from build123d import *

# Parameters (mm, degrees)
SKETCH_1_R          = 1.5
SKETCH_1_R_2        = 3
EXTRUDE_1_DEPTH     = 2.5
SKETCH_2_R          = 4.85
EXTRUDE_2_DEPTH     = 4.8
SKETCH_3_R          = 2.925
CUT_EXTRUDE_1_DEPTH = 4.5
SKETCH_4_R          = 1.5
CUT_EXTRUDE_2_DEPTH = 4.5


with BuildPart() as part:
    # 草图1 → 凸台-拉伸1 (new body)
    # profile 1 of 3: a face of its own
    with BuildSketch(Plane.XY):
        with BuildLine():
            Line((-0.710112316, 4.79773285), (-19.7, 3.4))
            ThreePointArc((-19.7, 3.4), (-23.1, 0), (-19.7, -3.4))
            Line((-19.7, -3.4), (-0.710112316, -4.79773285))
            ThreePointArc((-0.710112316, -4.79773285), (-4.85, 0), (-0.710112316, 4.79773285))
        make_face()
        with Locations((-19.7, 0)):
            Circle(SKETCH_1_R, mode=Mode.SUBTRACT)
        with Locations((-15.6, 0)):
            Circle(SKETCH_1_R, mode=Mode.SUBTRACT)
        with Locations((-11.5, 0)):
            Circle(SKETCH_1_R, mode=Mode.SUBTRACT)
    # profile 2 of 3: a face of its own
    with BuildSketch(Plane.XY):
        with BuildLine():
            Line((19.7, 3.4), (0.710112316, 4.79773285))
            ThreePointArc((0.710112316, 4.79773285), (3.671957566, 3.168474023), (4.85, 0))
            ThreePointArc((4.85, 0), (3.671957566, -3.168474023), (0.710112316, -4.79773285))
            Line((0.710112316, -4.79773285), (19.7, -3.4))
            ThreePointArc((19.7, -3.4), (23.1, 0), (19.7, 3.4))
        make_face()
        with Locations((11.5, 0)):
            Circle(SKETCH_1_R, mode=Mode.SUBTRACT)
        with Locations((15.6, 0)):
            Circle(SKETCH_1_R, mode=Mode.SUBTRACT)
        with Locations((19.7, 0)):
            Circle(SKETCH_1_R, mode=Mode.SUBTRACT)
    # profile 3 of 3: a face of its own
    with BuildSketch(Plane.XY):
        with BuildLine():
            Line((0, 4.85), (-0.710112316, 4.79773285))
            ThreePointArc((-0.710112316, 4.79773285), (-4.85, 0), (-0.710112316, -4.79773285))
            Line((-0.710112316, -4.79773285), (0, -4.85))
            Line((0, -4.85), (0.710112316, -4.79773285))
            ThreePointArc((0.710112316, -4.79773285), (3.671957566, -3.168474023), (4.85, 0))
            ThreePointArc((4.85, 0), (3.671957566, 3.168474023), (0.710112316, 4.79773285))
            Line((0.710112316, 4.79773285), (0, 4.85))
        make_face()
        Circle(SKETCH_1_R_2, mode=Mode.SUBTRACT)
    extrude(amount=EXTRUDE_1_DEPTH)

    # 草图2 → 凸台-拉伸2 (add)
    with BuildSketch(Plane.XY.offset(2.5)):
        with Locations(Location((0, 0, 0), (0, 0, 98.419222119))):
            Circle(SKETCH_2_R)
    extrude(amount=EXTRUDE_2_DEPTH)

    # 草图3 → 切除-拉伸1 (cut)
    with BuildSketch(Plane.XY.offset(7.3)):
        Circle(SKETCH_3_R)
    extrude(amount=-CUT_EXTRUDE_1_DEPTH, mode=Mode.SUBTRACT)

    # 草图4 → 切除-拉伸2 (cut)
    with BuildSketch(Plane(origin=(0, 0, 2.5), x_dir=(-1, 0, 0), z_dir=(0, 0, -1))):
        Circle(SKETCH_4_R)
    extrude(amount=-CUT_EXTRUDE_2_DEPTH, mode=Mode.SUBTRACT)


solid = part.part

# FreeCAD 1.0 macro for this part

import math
import FreeCAD as App
import Part
import Sketcher
from FreeCAD import Vector

doc = App.newDocument("Part")
body = doc.addObject("PartDesign::Body", "Body")

# Sketch on XY plane
sketch1 = body.newObject("Sketcher::SketchObject", "Sketch")
sketch1.AttachmentSupport = (doc.getObject("XY_Plane"), [""])
sketch1.MapMode = "FlatFace"
sketch1.addGeometry([
    Part.LineSegment(Vector(-0.710112, 4.797733, 0), Vector(-19.7, 3.4, 0)),  # 0
    Part.ArcOfCircle(Part.Circle(Vector(-19.7, 0, 0), Vector(0, 0, 1), 3.4), math.radians(90), math.radians(270)),  # 1
    Part.LineSegment(Vector(-19.7, -3.4, 0), Vector(-0.710112, -4.797733, 0)),  # 2
    Part.LineSegment(Vector(-0.710112, -4.797733, 0), Vector(0, -4.85, 0)),  # 3
    Part.LineSegment(Vector(0, -4.85, 0), Vector(0.710112, -4.797733, 0)),  # 4
    Part.LineSegment(Vector(0.710112, -4.797733, 0), Vector(19.7, -3.4, 0)),  # 5
    Part.ArcOfCircle(Part.Circle(Vector(19.7, 0, 0), Vector(0, 0, 1), 3.4), math.radians(-90), math.radians(90)),  # 6
    Part.LineSegment(Vector(19.7, 3.4, 0), Vector(0.710112, 4.797733, 0)),  # 7
    Part.LineSegment(Vector(0.710112, 4.797733, 0), Vector(0, 4.85, 0)),  # 8
    Part.LineSegment(Vector(0, 4.85, 0), Vector(-0.710112, 4.797733, 0)),  # 9
    Part.Circle(Vector(-19.7, 0, 0), Vector(0, 0, 1), 1.5),  # 10
    Part.Circle(Vector(-15.6, 0, 0), Vector(0, 0, 1), 1.5),  # 11
    Part.Circle(Vector(-11.5, 0, 0), Vector(0, 0, 1), 1.5),  # 12
    Part.Circle(Vector(0, 0, 0), Vector(0, 0, 1), 3),  # 13
    Part.Circle(Vector(19.7, 0, 0), Vector(0, 0, 1), 1.5),  # 14
    Part.Circle(Vector(15.6, 0, 0), Vector(0, 0, 1), 1.5),  # 15
    Part.Circle(Vector(11.5, 0, 0), Vector(0, 0, 1), 1.5),  # 16
], False)
sketch1.addConstraint([
    Sketcher.Constraint("Coincident", 0, 2, 1, 1),
    Sketcher.Constraint("Coincident", 1, 2, 2, 1),
    Sketcher.Constraint("Coincident", 2, 2, 3, 1),
    Sketcher.Constraint("Coincident", 3, 2, 4, 1),
    Sketcher.Constraint("Coincident", 4, 2, 5, 1),
    Sketcher.Constraint("Coincident", 5, 2, 6, 1),
    Sketcher.Constraint("Coincident", 6, 2, 7, 1),
    Sketcher.Constraint("Coincident", 7, 2, 8, 1),
    Sketcher.Constraint("Coincident", 8, 2, 9, 1),
    Sketcher.Constraint("Coincident", 9, 2, 0, 1),
    Sketcher.Constraint("Coincident", 13, 3, -1, 1),
    Sketcher.Constraint("Coincident", 10, 3, 1, 3),
    Sketcher.Constraint("Coincident", 14, 3, 6, 3),
    Sketcher.Constraint("Equal", 1, 6),
    Sketcher.Constraint("Equal", 10, 11),
    Sketcher.Constraint("Equal", 11, 12),
    Sketcher.Constraint("Equal", 12, 14),
    Sketcher.Constraint("Equal", 14, 15),
    Sketcher.Constraint("Equal", 15, 16),
    Sketcher.Constraint("Symmetric", 1, 3, 6, 3, -1, 1),
    Sketcher.Constraint("Symmetric", 11, 3, 15, 3, -1, 1),
    Sketcher.Constraint("Symmetric", 12, 3, 16, 3, -1, 1),
    Sketcher.Constraint("Symmetric", 2, 2, 7, 2, -1, 1),
    Sketcher.Constraint("Symmetric", 3, 2, 8, 2, -1, 1),
    Sketcher.Constraint("Symmetric", 4, 2, 9, 2, -1, 1),
    Sketcher.Constraint("Symmetric", 2, 2, 4, 2, -2),
    Sketcher.Constraint("Symmetric", 1, 2, 5, 2, -2),
    Sketcher.Constraint("PointOnObject", 11, 3, -1),
    Sketcher.Constraint("PointOnObject", 12, 3, -1),
    Sketcher.Constraint("PointOnObject", 3, 2, -2),
    Sketcher.Constraint("Parallel", 2, 3),
    Sketcher.Constraint("Parallel", 0, 4),
    Sketcher.Constraint("Parallel", 3, 7),
    Sketcher.Constraint("Vertical", 10, 3, 0, 2),
    Sketcher.Constraint("Diameter", 10, 3.0),
    Sketcher.Constraint("Diameter", 13, 6.0),
    Sketcher.Constraint("Radius", 1, 3.4),
    Sketcher.Constraint("DistanceX", 12, 3, 16, 3, 23.0),
    Sketcher.Constraint("DistanceX", 1, 3, -1, 1, 19.7),
    Sketcher.Constraint("DistanceX", 11, 3, -1, 1, 15.6),
    Sketcher.Constraint("DistanceY", 3, 2, 8, 2, 9.7),
    Sketcher.Constraint("Distance", 0, 19.041258),
])
pad1 = body.newObject("PartDesign::Pad", "Pad")
pad1.Profile = sketch1
pad1.Length = 2.5

# Sketch on XY plane
sketch2 = body.newObject("Sketcher::SketchObject", "Sketch001")
sketch2.AttachmentSupport = (doc.getObject("XY_Plane"), [""])
sketch2.MapMode = "FlatFace"
sketch2.AttachmentOffset = App.Placement(Vector(0, 0, 2.5), App.Rotation())
sketch2.addGeometry(Part.Circle(Vector(0, 0, 0), Vector(0, 0, 1), 4.85), False)
sketch2.addConstraint([
    Sketcher.Constraint("Coincident", 0, 3, -1, 1),
    Sketcher.Constraint("Diameter", 0, 9.7),
])
pad2 = body.newObject("PartDesign::Pad", "Pad001")
pad2.Profile = sketch2
pad2.Length = 4.8

# Sketch on XY plane
sketch3 = body.newObject("Sketcher::SketchObject", "Sketch002")
sketch3.AttachmentSupport = (doc.getObject("XY_Plane"), [""])
sketch3.MapMode = "FlatFace"
sketch3.AttachmentOffset = App.Placement(Vector(0, 0, 7.3), App.Rotation())
sketch3.addGeometry(Part.Circle(Vector(0, 0, 0), Vector(0, 0, 1), 2.925), False)
sketch3.addConstraint([
    Sketcher.Constraint("Coincident", 0, 3, -1, 1),
    Sketcher.Constraint("Diameter", 0, 5.85),
])
pocket1 = body.newObject("PartDesign::Pocket", "Pocket")
pocket1.Profile = sketch3
pocket1.Length = 4.5

# Sketch on XY plane
sketch4 = body.newObject("Sketcher::SketchObject", "Sketch003")
sketch4.AttachmentSupport = (doc.getObject("XY_Plane"), [""])
sketch4.MapMode = "FlatFace"
sketch4.AttachmentOffset = App.Placement(Vector(0, 0, 2.5), App.Rotation())
sketch4.addGeometry(Part.Circle(Vector(0, 0, 0), Vector(0, 0, 1), 1.5), False)
sketch4.addConstraint([
    Sketcher.Constraint("Coincident", 0, 3, -1, 1),
    Sketcher.Constraint("Diameter", 0, 3.0),
])
pocket2 = body.newObject("PartDesign::Pocket", "Pocket001")
pocket2.Profile = sketch4
pocket2.Length = 4.5
pocket2.Reversed = True

doc.recompute()
